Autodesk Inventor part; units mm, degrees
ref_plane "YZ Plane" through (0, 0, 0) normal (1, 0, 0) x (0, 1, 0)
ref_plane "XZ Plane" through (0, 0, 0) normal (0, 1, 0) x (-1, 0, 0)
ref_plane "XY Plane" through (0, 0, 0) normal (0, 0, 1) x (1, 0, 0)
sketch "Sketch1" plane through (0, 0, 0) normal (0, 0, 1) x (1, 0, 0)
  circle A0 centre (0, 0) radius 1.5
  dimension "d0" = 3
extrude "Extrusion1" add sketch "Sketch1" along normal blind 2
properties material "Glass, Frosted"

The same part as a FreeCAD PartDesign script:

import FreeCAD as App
import Part
import Sketcher
from FreeCAD import Vector
Q = App.Units.Quantity

doc = App.newDocument("Part")
body = doc.addObject("PartDesign::Body", "Body")

# Sketch on XY plane
sketch1 = body.newObject("Sketcher::SketchObject", "Sketch")
sketch1.AttachmentSupport = (doc.getObject("XY_Plane"), [""])
sketch1.MapMode = "FlatFace"
sketch1.addGeometry(Part.Circle(Vector(0, 0, 0), Vector(0, 0, 1), 1.5), False)
sketch1.addConstraint([
    Sketcher.Constraint("Coincident", 0, 3, -1, 1),
    Sketcher.Constraint("Diameter", 0, Q("3 mm")),
])
pad1 = body.newObject("PartDesign::Pad", "Pad")
pad1.Profile = sketch1
pad1.Length = 2

doc.recompute()
